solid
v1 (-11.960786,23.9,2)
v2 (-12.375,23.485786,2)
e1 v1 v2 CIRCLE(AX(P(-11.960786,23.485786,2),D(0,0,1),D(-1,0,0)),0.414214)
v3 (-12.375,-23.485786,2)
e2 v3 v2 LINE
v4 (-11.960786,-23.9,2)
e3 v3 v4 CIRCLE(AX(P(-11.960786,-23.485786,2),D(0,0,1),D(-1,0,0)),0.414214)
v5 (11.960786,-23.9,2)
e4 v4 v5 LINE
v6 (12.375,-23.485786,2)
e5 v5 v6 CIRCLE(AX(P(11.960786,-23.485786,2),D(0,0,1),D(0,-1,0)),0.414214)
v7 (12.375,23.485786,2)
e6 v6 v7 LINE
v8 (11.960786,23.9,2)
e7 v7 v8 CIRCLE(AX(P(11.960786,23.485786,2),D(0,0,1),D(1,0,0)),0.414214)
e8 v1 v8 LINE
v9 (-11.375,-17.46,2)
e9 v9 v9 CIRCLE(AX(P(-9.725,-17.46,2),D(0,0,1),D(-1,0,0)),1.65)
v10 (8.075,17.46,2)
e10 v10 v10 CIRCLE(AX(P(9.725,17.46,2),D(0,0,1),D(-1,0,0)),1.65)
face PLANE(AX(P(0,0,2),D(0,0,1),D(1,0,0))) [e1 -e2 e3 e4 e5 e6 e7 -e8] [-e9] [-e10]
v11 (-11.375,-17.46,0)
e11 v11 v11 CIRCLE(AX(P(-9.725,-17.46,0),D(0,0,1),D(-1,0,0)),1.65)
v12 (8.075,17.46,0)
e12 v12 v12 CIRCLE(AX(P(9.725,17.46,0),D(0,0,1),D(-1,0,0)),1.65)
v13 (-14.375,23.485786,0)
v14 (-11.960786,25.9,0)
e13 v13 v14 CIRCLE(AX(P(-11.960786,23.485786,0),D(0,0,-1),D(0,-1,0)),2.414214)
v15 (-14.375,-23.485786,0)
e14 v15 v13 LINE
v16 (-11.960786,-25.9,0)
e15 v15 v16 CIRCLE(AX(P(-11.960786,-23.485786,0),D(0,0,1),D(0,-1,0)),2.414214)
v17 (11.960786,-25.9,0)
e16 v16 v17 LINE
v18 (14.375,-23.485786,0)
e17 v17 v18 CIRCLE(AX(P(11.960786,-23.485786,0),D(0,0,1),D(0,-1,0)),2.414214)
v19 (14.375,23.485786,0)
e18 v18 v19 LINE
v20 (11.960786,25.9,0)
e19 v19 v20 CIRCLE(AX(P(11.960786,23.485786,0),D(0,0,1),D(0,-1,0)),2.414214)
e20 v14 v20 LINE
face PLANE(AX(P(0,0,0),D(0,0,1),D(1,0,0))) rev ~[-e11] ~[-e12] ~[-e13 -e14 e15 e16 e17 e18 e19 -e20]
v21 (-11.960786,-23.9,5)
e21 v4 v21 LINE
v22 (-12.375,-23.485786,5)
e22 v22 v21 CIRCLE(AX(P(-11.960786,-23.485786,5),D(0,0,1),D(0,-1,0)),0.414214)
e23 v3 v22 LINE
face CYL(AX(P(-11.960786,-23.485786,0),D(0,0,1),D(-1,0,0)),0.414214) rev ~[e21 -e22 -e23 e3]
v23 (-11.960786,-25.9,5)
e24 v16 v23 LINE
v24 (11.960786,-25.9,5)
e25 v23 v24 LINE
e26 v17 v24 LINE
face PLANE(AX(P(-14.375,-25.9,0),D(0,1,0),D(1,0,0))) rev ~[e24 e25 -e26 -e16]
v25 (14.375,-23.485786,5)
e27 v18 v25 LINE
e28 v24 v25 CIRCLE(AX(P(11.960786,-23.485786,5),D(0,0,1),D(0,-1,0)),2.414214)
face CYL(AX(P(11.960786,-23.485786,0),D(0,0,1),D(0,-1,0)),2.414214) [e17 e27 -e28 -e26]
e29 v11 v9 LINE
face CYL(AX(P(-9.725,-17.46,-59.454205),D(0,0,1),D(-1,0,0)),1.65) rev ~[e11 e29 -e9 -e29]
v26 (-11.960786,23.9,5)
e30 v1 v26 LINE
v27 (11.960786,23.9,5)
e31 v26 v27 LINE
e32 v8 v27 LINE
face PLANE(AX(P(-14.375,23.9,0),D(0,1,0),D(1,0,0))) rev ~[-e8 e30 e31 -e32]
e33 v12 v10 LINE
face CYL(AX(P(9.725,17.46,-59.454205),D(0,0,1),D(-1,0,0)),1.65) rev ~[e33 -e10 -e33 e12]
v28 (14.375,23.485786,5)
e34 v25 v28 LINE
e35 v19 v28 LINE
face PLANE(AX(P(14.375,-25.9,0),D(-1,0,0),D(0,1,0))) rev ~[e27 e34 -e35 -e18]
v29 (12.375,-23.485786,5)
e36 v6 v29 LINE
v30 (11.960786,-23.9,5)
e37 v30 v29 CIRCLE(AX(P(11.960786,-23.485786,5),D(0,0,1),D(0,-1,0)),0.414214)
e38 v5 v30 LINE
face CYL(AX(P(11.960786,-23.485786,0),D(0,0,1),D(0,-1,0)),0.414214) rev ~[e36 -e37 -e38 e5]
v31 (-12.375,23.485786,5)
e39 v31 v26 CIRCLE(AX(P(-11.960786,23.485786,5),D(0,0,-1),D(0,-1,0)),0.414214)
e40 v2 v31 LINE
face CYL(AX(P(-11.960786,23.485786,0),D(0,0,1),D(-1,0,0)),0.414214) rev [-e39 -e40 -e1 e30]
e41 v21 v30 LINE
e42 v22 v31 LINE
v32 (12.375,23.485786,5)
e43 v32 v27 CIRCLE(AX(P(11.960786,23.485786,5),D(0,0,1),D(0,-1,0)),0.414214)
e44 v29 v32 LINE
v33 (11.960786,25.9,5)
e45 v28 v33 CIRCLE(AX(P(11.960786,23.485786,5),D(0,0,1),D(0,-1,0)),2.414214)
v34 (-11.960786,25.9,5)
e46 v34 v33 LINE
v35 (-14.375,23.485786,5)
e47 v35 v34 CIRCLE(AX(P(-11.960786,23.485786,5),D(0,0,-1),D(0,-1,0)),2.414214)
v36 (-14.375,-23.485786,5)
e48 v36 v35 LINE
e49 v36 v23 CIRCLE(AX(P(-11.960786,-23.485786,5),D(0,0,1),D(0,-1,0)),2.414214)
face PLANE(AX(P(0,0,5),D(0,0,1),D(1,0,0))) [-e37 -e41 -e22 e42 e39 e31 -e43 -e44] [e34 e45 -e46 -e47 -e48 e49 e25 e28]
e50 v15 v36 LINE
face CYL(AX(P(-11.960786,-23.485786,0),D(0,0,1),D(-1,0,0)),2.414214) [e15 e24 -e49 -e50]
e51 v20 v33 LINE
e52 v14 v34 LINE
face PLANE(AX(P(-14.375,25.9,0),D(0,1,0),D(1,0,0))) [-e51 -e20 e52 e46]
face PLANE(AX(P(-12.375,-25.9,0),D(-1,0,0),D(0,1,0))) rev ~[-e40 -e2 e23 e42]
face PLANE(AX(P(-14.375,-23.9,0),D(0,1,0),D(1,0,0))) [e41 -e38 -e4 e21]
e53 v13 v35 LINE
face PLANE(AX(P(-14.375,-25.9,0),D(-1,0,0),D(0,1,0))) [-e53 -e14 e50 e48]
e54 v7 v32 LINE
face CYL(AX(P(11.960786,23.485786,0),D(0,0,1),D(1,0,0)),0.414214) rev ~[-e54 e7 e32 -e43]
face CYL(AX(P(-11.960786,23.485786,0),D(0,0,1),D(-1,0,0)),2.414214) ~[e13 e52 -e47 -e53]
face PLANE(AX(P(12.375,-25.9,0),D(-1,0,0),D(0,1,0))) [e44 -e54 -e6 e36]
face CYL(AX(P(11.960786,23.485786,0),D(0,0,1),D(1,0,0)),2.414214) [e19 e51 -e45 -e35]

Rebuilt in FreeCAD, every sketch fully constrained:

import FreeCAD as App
import Part
import Sketcher
from FreeCAD import Vector
Q = App.Units.Quantity


def edges_at(feature, points):
    """Names of the edges that pass closest to the given points."""
    edges = feature.Shape.Edges
    near = lambda p: min(range(len(edges)), key=lambda i: edges[i].distToShape(Part.Vertex(*p))[0])
    return sorted({f"Edge{near(p) + 1}" for p in points})


def faces_at(feature, points):
    """Names of the faces that lie closest to the given points."""
    faces = feature.Shape.Faces
    near = lambda p: min(range(len(faces)), key=lambda i: faces[i].distToShape(Part.Vertex(*p))[0])
    return sorted({f"Face{near(p) + 1}" for p in points})


def add_polygon(sketch, points):
    """Adds a closed chain of lines whose ends are joined by coincident constraints."""
    first, n = sketch.GeometryCount, len(points)
    for a, b in zip(points, points[1:] + points[:1]):
        sketch.addGeometry(Part.LineSegment(App.Vector(*a, 0), App.Vector(*b, 0)), False)
    for i in range(n):
        sketch.addConstraint(Sketcher.Constraint("Coincident", first + i, 2, first + (i + 1) % n, 1))

doc = App.newDocument("Part")
body = doc.addObject("PartDesign::Body", "Body")

# Sketch on XY plane
sketch1 = body.newObject("Sketcher::SketchObject", "Sketch")
sketch1.AttachmentSupport = (doc.getObject("XY_Plane"), [""])
sketch1.MapMode = "FlatFace"
add_polygon(sketch1, [(-14, 26), (-14, -26), (14, -26), (14, 26)])  # lines 0-3
sketch1.addConstraint([
    Sketcher.Constraint("Vertical", 0),
    Sketcher.Constraint("Horizontal", 1),
    Sketcher.Constraint("Vertical", 2),
    Sketcher.Constraint("Horizontal", 3),
    Sketcher.Constraint("Symmetric", 0, 2, 2, 2, -1, 1),
    Sketcher.Constraint("DistanceY", 0, 2, 0, 1, Q("51.8 mm")),
    Sketcher.Constraint("DistanceX", 1, 1, 1, 2, Q("28.75 mm")),
])
pad1 = body.newObject("PartDesign::Pad", "Pad")
pad1.Profile = sketch1
pad1.Length = 5
doc.recompute()

fillet = body.newObject("PartDesign::Fillet", "Fillet")
fillet.Base = (pad1, edges_at(pad1, [
    (14.375, -25.9, 2.5),
    (-14.375, -25.9, 2.5),
    (14.375, 25.9, 2.5),
    (-14.375, 25.9, 2.5),
]))
fillet.Radius = 2.414214
doc.recompute()

thickness = body.newObject("PartDesign::Thickness", "Thickness")
thickness.Base = (fillet, faces_at(fillet, [(0, 0, 5)]))
thickness.Value = 2
thickness.Reversed = True
thickness.Join = "Arc"

# Sketch on XY plane
sketch2 = body.newObject("Sketcher::SketchObject", "Sketch001")
sketch2.AttachmentSupport = (doc.getObject("XY_Plane"), [""])
sketch2.MapMode = "FlatFace"
sketch2.addGeometry([
    Part.Circle(Vector(9.7, 17.5, 0), Vector(0, 0, 1), 1.6),
    Part.Circle(Vector(-9.7, -17.5, 0), Vector(0, 0, 1), 1.6),
], False)
sketch2.addConstraint([
    Sketcher.Constraint("Equal", 0, 1),
    Sketcher.Constraint("Symmetric", 0, 3, 1, 3, -1, 1),
    Sketcher.Constraint("Diameter", 0, Q("3.3 mm")),
    Sketcher.Constraint("DistanceY", -1, 1, 0, 3, Q("17.46 mm")),
    Sketcher.Constraint("DistanceX", 1, 3, 0, 3, Q("19.45 mm")),
])
doc.recompute()
hole = body.newObject("PartDesign::Hole", "Hole")
hole.Profile = sketch2
hole.ThreadType = "None"
hole.Diameter = 3.3
hole.DepthType = "ThroughAll"
hole.Reversed = True

doc.recompute()
